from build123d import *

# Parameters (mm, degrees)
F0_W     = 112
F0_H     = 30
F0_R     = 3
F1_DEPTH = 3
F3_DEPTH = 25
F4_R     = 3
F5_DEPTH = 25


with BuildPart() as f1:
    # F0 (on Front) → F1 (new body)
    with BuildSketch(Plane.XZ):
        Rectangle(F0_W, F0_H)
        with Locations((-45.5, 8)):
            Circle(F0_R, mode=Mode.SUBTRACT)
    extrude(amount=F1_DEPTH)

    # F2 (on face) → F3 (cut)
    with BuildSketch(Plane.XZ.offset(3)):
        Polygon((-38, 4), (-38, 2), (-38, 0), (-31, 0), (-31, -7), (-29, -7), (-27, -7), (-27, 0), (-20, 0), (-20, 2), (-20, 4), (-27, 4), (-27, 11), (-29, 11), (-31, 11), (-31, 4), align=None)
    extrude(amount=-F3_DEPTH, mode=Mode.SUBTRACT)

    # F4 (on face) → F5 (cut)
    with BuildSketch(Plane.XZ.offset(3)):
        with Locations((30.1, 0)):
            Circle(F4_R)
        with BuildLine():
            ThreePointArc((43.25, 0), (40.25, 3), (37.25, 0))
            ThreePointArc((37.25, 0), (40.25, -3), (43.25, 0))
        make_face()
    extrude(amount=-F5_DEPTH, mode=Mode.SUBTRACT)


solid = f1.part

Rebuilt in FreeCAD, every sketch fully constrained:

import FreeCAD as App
import Part
import Sketcher

V = App.Vector
Q = App.Units.Quantity


def add_polygon(sketch, points):
    """Adds a closed chain of lines whose ends are joined by coincident constraints."""
    first, n = sketch.GeometryCount, len(points)
    for a, b in zip(points, points[1:] + points[:1]):
        sketch.addGeometry(Part.LineSegment(App.Vector(*a, 0), App.Vector(*b, 0)), False)
    for i in range(n):
        sketch.addConstraint(Sketcher.Constraint("Coincident", first + i, 2, first + (i + 1) % n, 1))

doc = App.newDocument("Part")
body = doc.addObject("PartDesign::Body", "Body")

sketch1 = body.newObject("Sketcher::SketchObject", "Sketch")
sketch1.AttachmentSupport = (doc.getObject("XZ_Plane"), [""])
sketch1.MapMode = "FlatFace"
add_polygon(sketch1, [(-56, 15), (-56, -15), (56, -15), (56, 15)])
sketch1.addGeometry(Part.Circle(V(-45.5, 8, 0), V(0, 0, 1), 3), False)
sketch1.addConstraint([
    Sketcher.Constraint("Vertical", 0),
    Sketcher.Constraint("Horizontal", 1),
    Sketcher.Constraint("Vertical", 2),
    Sketcher.Constraint("Horizontal", 3),
    Sketcher.Constraint("Symmetric", 0, 2, 2, 2, -1, 1),
    Sketcher.Constraint("Diameter", 4, Q("6 mm")),
    Sketcher.Constraint("DistanceX", 1, 1, 1, 2, Q("112 mm")),
    Sketcher.Constraint("DistanceY", 0, 2, 0, 1, Q("30 mm")),
    Sketcher.Constraint("DistanceY", -1, 1, 4, 3, Q("8 mm")),
    Sketcher.Constraint("DistanceX", 4, 3, -1, 1, Q("45.5 mm")),
])
pad1 = body.newObject("PartDesign::Pad", "Pad")
pad1.Profile = sketch1
pad1.Length = 3

sketch2 = body.newObject("Sketcher::SketchObject", "Sketch001")
sketch2.AttachmentSupport = (doc.getObject("XZ_Plane"), [""])
sketch2.MapMode = "FlatFace"
sketch2.AttachmentOffset = App.Placement(V(0, 0, 3), App.Rotation())
add_polygon(sketch2, [(-38, 4), (-38, 0), (-31, 0), (-31, -7), (-27, -7), (-27, 0), (-20, 0), (-20, 4), (-27, 4), (-27, 11), (-31, 11), (-31, 4)])
sketch2.addConstraint([
    Sketcher.Constraint("Vertical", 0),
    Sketcher.Constraint("Horizontal", 1),
    Sketcher.Constraint("Vertical", 2),
    Sketcher.Constraint("Horizontal", 3),
    Sketcher.Constraint("Vertical", 4),
    Sketcher.Constraint("Horizontal", 5),
    Sketcher.Constraint("Vertical", 6),
    Sketcher.Constraint("Horizontal", 7),
    Sketcher.Constraint("Vertical", 8),
    Sketcher.Constraint("Horizontal", 9),
    Sketcher.Constraint("Vertical", 10),
    Sketcher.Constraint("Horizontal", 11),
    Sketcher.Constraint("PointOnObject", 0, 2, -1),
    Sketcher.Constraint("PointOnObject", 4, 2, -1),
    Sketcher.Constraint("Horizontal", 7, 2, 10, 2),
    Sketcher.Constraint("Vertical", 4, 2, 7, 2),
    Sketcher.Constraint("Vertical", 2, 2, 9, 2),
    Sketcher.Constraint("Equal", 1, 5),
    Sketcher.Constraint("Equal", 9, 0),
    Sketcher.Constraint("Equal", 11, 2),
    Sketcher.Constraint("Equal", 4, 8),
    Sketcher.Constraint("DistanceX", 1, 1, 1, 2, Q("7 mm")),
    Sketcher.Constraint("DistanceX", 3, 1, 3, 2, Q("4 mm")),
    Sketcher.Constraint("DistanceX", 0, 2, -1, 1, Q("38 mm")),
])
pocket1 = body.newObject("PartDesign::Pocket", "Pocket")
pocket1.Profile = sketch2
pocket1.Length = 25

sketch3 = body.newObject("Sketcher::SketchObject", "Sketch002")
sketch3.AttachmentSupport = (doc.getObject("XZ_Plane"), [""])
sketch3.MapMode = "FlatFace"
sketch3.AttachmentOffset = App.Placement(V(0, 0, 3), App.Rotation())
sketch3.addGeometry([
    Part.Circle(V(30.1, 0, 0), V(0, 0, 1), 3),
    Part.Circle(V(40.25, 0, 0), V(0, 0, 1), 3),
], False)
sketch3.addConstraint([
    Sketcher.Constraint("Equal", 0, 1),
    Sketcher.Constraint("PointOnObject", 0, 3, -1),
    Sketcher.Constraint("PointOnObject", 1, 3, -1),
    Sketcher.Constraint("Diameter", 0, Q("6 mm")),
    Sketcher.Constraint("DistanceX", -1, 1, 0, 3, Q("30.1 mm")),
    Sketcher.Constraint("DistanceX", -1, 1, 1, 3, Q("40.25 mm")),
])
pocket2 = body.newObject("PartDesign::Pocket", "Pocket001")
pocket2.Profile = sketch3
pocket2.Length = 25

doc.recompute()
